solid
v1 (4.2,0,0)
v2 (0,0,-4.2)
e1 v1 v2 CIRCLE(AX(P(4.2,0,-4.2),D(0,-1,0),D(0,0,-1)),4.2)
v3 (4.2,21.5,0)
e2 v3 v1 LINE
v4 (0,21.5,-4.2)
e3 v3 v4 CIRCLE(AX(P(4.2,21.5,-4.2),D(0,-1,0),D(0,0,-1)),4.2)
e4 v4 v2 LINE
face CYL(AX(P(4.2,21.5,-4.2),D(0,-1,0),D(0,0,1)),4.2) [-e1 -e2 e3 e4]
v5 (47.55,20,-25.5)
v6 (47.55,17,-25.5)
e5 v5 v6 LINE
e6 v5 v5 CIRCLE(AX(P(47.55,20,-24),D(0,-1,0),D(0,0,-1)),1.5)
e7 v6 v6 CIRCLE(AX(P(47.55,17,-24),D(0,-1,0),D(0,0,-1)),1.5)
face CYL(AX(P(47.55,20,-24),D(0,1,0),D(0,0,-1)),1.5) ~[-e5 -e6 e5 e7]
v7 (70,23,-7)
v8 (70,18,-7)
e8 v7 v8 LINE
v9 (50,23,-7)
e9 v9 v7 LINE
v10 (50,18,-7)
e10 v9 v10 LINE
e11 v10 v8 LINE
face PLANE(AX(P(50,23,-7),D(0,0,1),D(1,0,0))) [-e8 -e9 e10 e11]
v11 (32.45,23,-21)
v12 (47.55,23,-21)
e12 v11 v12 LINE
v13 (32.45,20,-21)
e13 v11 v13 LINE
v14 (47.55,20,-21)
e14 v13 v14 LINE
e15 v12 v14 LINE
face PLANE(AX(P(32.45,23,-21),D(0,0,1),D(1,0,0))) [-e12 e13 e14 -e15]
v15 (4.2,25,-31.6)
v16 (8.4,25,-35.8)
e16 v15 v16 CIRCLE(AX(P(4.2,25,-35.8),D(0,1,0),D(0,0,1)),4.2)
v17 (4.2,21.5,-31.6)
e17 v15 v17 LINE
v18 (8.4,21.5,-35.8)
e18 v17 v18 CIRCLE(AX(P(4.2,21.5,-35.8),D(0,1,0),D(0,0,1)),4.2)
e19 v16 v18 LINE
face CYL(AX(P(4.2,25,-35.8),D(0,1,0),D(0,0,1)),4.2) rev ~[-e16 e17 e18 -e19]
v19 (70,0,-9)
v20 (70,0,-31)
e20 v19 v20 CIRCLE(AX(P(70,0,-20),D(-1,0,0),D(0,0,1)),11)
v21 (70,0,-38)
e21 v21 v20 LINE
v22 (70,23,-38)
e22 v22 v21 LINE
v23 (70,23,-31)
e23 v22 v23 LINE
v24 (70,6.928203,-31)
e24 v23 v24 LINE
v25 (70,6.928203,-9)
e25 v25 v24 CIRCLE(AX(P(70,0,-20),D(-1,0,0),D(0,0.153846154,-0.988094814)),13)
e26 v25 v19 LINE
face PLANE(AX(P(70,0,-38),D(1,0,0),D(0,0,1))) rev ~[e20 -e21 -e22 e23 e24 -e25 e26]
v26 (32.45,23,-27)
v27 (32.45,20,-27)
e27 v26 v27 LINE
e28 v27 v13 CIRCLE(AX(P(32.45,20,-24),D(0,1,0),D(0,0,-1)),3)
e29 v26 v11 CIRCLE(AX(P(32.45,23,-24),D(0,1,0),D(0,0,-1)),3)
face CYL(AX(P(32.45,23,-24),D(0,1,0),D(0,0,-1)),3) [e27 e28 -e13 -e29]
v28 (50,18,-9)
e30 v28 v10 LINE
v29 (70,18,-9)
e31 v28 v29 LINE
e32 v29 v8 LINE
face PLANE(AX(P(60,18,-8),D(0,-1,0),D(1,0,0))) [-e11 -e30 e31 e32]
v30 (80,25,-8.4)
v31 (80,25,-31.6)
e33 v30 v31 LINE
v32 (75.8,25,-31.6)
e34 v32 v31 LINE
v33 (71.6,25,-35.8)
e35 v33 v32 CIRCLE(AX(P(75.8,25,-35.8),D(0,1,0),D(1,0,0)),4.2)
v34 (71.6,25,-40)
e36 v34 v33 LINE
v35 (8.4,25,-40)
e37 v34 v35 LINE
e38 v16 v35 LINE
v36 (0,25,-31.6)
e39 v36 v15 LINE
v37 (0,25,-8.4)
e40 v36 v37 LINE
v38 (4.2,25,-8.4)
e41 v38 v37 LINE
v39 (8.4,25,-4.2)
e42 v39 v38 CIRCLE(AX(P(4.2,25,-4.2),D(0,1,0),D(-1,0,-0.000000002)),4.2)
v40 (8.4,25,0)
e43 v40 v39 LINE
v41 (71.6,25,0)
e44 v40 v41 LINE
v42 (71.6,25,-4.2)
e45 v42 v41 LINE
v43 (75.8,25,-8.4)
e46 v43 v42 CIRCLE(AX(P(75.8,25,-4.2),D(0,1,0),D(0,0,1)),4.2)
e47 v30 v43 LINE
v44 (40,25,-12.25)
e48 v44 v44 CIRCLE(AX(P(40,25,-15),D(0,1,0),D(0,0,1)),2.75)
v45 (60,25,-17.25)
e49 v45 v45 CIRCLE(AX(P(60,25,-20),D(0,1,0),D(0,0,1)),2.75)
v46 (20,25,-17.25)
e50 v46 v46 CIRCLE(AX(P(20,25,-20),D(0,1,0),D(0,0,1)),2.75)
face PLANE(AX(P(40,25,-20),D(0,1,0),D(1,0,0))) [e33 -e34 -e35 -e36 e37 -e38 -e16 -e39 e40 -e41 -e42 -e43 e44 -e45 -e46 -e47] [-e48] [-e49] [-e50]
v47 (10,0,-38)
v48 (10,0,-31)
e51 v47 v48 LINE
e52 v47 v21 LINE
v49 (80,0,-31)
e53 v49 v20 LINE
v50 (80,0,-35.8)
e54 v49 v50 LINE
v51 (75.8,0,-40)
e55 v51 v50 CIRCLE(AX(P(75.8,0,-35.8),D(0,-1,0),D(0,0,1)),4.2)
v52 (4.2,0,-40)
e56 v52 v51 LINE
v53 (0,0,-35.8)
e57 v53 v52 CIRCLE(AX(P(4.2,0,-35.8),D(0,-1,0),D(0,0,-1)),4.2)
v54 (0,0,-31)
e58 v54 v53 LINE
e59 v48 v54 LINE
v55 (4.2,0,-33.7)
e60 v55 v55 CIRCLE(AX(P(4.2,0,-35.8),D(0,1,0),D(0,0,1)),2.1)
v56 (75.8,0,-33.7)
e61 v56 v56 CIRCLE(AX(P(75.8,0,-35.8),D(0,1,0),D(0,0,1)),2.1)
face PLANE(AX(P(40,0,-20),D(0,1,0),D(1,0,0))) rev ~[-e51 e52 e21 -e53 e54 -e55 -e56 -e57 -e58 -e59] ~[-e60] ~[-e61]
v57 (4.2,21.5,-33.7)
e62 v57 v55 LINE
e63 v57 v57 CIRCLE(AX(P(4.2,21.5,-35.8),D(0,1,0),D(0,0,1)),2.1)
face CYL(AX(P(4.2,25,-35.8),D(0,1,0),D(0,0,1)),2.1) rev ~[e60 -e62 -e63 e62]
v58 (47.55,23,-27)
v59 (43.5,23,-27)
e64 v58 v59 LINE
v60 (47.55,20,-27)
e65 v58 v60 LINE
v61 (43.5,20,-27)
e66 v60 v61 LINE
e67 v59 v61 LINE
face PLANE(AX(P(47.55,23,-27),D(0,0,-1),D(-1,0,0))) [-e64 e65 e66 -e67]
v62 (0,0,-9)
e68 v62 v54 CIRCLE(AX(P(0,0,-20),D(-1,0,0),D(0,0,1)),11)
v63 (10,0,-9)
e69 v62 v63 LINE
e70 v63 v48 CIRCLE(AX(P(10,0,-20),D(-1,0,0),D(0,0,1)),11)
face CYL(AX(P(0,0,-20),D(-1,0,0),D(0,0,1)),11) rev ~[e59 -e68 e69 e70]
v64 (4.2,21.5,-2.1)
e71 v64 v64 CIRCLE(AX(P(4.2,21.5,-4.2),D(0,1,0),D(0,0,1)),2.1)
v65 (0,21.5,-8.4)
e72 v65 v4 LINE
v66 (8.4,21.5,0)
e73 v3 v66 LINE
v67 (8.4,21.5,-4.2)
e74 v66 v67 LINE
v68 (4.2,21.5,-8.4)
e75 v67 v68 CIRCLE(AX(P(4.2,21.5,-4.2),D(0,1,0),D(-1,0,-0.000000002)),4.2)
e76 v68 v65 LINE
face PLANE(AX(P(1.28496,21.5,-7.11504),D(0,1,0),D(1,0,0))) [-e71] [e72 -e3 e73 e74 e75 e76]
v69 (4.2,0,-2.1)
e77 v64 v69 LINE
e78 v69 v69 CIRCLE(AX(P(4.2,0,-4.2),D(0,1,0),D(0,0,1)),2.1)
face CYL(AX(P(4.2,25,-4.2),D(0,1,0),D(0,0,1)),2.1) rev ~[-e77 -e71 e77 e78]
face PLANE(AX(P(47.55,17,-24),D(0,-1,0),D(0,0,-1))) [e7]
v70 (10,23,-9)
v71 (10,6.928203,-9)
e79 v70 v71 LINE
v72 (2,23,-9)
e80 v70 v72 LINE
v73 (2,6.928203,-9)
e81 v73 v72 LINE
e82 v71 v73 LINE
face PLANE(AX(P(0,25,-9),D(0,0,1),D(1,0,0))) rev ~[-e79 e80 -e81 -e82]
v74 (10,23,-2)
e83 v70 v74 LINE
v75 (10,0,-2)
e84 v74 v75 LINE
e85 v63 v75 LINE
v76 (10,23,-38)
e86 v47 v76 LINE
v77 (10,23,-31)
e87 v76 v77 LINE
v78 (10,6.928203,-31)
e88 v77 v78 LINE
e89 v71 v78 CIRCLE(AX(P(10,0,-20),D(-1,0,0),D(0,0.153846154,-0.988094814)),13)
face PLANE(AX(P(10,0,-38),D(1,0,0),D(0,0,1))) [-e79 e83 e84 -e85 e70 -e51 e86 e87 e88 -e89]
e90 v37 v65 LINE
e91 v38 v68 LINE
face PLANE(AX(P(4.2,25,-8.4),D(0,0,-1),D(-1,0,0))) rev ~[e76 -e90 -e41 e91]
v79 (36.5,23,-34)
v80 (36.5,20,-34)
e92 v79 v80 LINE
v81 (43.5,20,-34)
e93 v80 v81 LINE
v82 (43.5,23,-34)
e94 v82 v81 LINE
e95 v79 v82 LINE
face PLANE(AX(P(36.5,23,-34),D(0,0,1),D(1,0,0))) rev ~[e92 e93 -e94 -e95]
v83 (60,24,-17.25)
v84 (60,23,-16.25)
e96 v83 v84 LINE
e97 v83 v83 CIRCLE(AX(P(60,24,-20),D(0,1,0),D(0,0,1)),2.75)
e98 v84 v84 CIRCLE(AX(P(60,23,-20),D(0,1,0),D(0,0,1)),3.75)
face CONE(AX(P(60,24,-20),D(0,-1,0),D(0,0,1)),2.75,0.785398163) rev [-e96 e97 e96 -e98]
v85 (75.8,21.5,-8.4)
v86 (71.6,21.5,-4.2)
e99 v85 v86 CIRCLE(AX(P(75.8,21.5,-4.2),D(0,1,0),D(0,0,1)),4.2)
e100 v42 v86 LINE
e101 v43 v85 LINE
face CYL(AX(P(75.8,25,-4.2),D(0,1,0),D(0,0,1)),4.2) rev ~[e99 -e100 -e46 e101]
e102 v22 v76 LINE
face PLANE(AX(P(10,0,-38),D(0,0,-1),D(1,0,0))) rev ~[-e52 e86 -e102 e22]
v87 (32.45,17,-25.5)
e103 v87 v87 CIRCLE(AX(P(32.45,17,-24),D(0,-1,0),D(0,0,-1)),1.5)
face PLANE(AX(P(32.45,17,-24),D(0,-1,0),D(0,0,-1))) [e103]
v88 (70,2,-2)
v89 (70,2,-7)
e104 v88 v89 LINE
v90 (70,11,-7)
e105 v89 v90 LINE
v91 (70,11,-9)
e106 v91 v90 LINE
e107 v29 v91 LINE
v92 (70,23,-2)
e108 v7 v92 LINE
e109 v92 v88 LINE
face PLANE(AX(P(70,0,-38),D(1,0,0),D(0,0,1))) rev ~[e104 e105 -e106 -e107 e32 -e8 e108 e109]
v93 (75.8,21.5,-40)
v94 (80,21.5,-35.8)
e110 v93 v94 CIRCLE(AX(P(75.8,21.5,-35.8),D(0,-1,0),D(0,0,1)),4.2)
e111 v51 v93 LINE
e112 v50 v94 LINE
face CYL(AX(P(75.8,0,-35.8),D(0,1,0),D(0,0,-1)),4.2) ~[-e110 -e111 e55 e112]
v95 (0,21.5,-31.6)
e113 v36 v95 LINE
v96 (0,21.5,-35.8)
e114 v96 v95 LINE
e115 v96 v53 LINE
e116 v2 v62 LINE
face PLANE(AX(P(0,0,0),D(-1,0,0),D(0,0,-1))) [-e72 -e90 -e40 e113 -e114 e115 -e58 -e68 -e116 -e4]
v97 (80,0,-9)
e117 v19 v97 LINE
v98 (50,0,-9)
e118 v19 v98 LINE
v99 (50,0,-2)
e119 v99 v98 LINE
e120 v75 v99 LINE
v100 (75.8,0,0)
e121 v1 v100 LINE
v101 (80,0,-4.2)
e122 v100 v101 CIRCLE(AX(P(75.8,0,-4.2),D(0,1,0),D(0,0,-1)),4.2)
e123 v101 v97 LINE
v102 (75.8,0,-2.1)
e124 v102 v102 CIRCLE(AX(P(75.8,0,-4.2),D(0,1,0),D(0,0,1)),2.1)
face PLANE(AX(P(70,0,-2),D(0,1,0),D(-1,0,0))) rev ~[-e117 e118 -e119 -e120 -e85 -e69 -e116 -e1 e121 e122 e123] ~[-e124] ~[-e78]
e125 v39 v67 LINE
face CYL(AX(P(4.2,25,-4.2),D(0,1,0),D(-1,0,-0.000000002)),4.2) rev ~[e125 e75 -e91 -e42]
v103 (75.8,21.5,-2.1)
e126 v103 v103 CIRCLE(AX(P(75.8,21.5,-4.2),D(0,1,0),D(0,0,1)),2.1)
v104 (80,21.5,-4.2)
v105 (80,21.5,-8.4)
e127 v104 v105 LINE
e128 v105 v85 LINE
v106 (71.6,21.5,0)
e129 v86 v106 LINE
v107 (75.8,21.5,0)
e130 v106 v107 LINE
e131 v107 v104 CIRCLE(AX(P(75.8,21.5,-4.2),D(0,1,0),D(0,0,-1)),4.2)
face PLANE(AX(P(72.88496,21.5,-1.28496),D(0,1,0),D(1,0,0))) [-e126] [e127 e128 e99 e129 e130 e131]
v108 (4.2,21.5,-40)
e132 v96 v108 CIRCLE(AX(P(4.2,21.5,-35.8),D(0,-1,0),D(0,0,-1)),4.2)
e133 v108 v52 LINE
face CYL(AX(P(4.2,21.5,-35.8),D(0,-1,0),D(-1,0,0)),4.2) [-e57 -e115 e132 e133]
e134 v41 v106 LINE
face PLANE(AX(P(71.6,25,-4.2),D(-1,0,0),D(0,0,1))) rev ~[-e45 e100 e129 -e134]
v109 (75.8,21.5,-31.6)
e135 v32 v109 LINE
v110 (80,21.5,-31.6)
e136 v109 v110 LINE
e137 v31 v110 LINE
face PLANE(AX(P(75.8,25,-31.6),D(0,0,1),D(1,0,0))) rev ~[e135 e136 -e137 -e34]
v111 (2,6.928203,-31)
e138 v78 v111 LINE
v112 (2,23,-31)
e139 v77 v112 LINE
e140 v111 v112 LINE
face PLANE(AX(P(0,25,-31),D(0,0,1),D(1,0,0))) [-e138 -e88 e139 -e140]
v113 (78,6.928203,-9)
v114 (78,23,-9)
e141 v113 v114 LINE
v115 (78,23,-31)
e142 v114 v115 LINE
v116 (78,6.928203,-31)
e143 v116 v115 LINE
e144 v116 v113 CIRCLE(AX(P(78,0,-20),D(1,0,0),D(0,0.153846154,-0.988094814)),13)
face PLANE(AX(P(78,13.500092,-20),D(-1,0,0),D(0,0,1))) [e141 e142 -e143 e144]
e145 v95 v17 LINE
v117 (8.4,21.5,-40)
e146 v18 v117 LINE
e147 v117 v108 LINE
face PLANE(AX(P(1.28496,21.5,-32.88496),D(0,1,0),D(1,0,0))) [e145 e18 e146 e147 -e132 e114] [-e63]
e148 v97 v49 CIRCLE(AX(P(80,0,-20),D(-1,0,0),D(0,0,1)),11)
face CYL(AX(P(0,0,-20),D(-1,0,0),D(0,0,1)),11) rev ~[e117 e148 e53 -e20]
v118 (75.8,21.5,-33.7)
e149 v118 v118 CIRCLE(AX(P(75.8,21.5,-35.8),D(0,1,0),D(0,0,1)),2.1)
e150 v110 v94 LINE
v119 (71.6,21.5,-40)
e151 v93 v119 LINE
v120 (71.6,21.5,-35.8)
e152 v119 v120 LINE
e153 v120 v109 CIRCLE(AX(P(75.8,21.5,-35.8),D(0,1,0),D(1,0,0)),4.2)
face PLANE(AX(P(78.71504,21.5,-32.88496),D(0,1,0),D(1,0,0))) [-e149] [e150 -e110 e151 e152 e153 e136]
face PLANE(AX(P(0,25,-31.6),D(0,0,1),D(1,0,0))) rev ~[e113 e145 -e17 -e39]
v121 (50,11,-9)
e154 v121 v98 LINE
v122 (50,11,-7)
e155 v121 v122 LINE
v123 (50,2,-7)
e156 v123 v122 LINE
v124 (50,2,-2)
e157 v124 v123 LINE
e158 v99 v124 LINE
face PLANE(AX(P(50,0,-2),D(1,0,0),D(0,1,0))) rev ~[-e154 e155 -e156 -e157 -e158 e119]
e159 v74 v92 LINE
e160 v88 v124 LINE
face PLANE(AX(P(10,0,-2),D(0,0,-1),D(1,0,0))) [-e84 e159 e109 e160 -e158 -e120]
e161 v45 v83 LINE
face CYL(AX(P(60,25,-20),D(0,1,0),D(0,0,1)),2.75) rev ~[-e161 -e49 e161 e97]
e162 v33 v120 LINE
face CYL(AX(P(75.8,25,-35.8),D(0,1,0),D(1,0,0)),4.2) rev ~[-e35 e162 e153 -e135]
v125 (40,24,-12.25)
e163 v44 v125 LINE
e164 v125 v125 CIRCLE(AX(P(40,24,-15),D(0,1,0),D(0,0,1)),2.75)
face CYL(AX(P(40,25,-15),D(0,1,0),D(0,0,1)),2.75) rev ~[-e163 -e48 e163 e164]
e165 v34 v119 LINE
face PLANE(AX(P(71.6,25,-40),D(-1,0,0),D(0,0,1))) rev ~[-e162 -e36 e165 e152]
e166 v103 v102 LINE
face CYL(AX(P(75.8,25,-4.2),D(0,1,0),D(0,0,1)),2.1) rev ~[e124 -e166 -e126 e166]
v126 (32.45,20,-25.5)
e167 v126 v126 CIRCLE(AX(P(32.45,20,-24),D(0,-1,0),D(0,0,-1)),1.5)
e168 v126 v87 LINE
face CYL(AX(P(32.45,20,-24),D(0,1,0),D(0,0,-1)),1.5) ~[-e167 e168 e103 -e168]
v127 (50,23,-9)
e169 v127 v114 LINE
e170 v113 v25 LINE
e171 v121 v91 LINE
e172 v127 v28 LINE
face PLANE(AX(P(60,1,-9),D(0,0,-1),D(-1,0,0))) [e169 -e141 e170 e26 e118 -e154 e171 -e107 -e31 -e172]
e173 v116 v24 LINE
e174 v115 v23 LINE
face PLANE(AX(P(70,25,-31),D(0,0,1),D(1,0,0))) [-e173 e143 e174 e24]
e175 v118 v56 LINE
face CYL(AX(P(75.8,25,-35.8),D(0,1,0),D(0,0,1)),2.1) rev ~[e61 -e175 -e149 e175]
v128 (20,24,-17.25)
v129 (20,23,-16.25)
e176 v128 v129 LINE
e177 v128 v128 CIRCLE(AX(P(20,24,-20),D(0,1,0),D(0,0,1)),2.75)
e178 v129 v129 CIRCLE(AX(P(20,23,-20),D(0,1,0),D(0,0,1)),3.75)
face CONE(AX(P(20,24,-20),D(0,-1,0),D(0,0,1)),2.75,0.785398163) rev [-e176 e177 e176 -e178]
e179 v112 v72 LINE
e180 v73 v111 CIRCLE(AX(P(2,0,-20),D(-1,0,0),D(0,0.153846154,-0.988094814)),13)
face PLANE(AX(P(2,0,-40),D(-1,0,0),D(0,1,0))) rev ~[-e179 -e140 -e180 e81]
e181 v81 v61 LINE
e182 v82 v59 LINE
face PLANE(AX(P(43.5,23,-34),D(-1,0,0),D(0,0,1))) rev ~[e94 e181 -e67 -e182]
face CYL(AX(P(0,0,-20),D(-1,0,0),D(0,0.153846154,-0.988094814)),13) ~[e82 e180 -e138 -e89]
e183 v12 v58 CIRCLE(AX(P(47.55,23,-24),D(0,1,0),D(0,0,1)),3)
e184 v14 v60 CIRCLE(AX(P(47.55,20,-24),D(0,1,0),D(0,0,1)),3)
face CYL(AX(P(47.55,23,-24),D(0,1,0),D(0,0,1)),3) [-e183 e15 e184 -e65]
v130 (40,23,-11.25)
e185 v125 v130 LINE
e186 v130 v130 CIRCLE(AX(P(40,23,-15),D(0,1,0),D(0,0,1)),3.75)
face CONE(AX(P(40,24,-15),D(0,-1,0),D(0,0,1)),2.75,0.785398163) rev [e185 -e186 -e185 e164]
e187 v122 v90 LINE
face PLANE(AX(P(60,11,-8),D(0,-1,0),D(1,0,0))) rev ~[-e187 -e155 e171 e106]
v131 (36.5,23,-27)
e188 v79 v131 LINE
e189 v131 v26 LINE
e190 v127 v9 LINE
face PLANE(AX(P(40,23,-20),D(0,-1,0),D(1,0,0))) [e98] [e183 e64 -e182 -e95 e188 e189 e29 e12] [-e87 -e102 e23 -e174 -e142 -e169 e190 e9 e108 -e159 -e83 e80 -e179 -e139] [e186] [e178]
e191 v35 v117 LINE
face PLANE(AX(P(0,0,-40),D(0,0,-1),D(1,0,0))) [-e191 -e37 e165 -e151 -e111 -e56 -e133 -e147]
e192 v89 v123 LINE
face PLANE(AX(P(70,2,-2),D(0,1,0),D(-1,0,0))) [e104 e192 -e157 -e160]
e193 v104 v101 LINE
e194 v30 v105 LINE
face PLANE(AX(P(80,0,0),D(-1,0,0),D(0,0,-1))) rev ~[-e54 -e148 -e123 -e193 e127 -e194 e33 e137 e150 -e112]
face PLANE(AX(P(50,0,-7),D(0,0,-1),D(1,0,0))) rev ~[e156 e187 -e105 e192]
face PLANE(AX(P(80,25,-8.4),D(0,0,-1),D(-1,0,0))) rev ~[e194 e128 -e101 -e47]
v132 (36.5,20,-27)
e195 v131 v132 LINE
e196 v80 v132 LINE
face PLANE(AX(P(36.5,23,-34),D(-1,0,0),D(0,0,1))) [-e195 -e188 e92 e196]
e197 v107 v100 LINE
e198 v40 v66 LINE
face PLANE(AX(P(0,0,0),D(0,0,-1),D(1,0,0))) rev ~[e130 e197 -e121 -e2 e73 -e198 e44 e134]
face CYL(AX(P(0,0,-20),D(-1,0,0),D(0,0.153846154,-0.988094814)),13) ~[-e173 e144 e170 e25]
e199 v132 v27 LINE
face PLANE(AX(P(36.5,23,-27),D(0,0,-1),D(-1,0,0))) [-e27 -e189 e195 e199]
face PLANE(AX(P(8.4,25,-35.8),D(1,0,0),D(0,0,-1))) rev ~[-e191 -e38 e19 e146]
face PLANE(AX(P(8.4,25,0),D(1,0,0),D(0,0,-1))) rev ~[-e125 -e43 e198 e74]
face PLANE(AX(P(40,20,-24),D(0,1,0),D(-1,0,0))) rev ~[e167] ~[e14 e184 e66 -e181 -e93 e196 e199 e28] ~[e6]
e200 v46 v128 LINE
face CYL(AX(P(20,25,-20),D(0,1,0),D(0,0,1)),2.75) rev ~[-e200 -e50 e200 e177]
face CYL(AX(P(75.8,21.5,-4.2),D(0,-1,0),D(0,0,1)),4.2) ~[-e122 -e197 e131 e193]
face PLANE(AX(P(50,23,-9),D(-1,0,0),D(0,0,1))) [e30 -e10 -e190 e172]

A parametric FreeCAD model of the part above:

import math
import FreeCAD as App
import Part
import Sketcher


def edges_at(feature, points):
    """Names of the edges that pass closest to the given points."""
    edges = feature.Shape.Edges
    near = lambda p: min(range(len(edges)), key=lambda i: edges[i].distToShape(Part.Vertex(*p))[0])
    return sorted({f"Edge{near(p) + 1}" for p in points})


def add_polygon(sketch, points):
    """Adds a closed chain of lines whose ends are joined by coincident constraints."""
    first, n = sketch.GeometryCount, len(points)
    for a, b in zip(points, points[1:] + points[:1]):
        sketch.addGeometry(Part.LineSegment(App.Vector(*a, 0), App.Vector(*b, 0)), False)
    for i in range(n):
        sketch.addConstraint(Sketcher.Constraint("Coincident", first + i, 2, first + (i + 1) % n, 1))

doc = App.newDocument("Part")
body = doc.addObject("PartDesign::Body", "Body")

# Sketch on XZ plane
sketch1 = body.newObject("Sketcher::SketchObject", "Sketch")
sketch1.AttachmentSupport = (doc.getObject("XZ_Plane"), [""])
sketch1.MapMode = "FlatFace"
add_polygon(sketch1, [(0, -40), (0, 0), (80, 0), (80, -40)])  # lines 0-3
sketch1.addConstraint(Sketcher.Constraint("Vertical", 0))
sketch1.addConstraint(Sketcher.Constraint("Horizontal", 1))
sketch1.addConstraint(Sketcher.Constraint("Vertical", 2))
sketch1.addConstraint(Sketcher.Constraint("Horizontal", 3))
sketch1.addConstraint(Sketcher.Constraint("Coincident", 0, 2, -1, 1))
sketch1.addConstraint(Sketcher.Constraint("DistanceX", 1, 1, 1, 2, 80.0))
sketch1.addConstraint(Sketcher.Constraint("DistanceY", 0, 1, 0, 2, 40.0))
pad1 = body.newObject("PartDesign::Pad", "Pad")
pad1.Profile = sketch1
pad1.Length = 25
pad1.Reversed = True

# Sketch on YZ plane
sketch2 = body.newObject("Sketcher::SketchObject", "Sketch001")
sketch2.AttachmentSupport = (doc.getObject("YZ_Plane"), [""])
sketch2.MapMode = "FlatFace"
sketch2.addGeometry(Part.LineSegment(App.Vector(23, -2, 0), App.Vector(23, -38, 0)), False)
sketch2.addGeometry(Part.LineSegment(App.Vector(23, -38, 0), App.Vector(2, -38, 0)), False)
sketch2.addGeometry(Part.LineSegment(App.Vector(2, -38, 0), App.Vector(2, -33, 0)), False)
sketch2.addGeometry(Part.ArcOfCircle(Part.Circle(App.Vector(0, -20, 0), App.Vector(0, 0, 1), 13), math.radians(-81), math.radians(81)), False)
sketch2.addGeometry(Part.LineSegment(App.Vector(2, -7, 0), App.Vector(2, -2, 0)), False)
sketch2.addGeometry(Part.LineSegment(App.Vector(2, -2, 0), App.Vector(23, -2, 0)), False)
sketch2.addConstraint(Sketcher.Constraint("Coincident", 0, 2, 1, 1))
sketch2.addConstraint(Sketcher.Constraint("Coincident", 1, 2, 2, 1))
sketch2.addConstraint(Sketcher.Constraint("Coincident", 2, 2, 3, 1))
sketch2.addConstraint(Sketcher.Constraint("Coincident", 3, 2, 4, 1))
sketch2.addConstraint(Sketcher.Constraint("Coincident", 4, 2, 5, 1))
sketch2.addConstraint(Sketcher.Constraint("Coincident", 5, 2, 0, 1))
sketch2.addConstraint(Sketcher.Constraint("Vertical", 0))
sketch2.addConstraint(Sketcher.Constraint("Horizontal", 1))
sketch2.addConstraint(Sketcher.Constraint("Vertical", 2))
sketch2.addConstraint(Sketcher.Constraint("Vertical", 4))
sketch2.addConstraint(Sketcher.Constraint("Horizontal", 5))
sketch2.addConstraint(Sketcher.Constraint("PointOnObject", 3, 3, -2))
sketch2.addConstraint(Sketcher.Constraint("Vertical", 2, 2, 3, 2))
sketch2.addConstraint(Sketcher.Constraint("Equal", 2, 4))
sketch2.addConstraint(Sketcher.Constraint("Radius", 3, 13.0))
sketch2.addConstraint(Sketcher.Constraint("DistanceX", 1, 2, 1, 1, 21.0))
sketch2.addConstraint(Sketcher.Constraint("DistanceY", 0, 2, 0, 1, 36.0))
sketch2.addConstraint(Sketcher.Constraint("DistanceY", 3, 3, -1, 1, 20.0))
sketch2.addConstraint(Sketcher.Constraint("DistanceX", -1, 1, 0, 2, 23.0))
pocket1 = body.newObject("PartDesign::Pocket", "Pocket")
pocket1.Profile = sketch2
pocket1.Length = 78
pocket1.Reversed = True

# Sketch on XY plane
sketch3 = body.newObject("Sketcher::SketchObject", "Sketch002")
sketch3.AttachmentSupport = (doc.getObject("XY_Plane"), [""])
sketch3.MapMode = "FlatFace"
sketch3.AttachmentOffset = App.Placement(App.Vector(0, 0, -40), App.Rotation())
add_polygon(sketch3, [(2, 25), (2, 0), (0, 0), (0, 25)])  # lines 0-3
sketch3.addConstraint(Sketcher.Constraint("Vertical", 0))
sketch3.addConstraint(Sketcher.Constraint("Horizontal", 1))
sketch3.addConstraint(Sketcher.Constraint("Vertical", 2))
sketch3.addConstraint(Sketcher.Constraint("Horizontal", 3))
sketch3.addConstraint(Sketcher.Constraint("Coincident", 1, 2, -1, 1))
sketch3.addConstraint(Sketcher.Constraint("DistanceX", 1, 2, 1, 1, 2.0))
sketch3.addConstraint(Sketcher.Constraint("DistanceY", 0, 2, 0, 1, 25.0))
pad2 = body.newObject("PartDesign::Pad", "Pad001")
pad2.Profile = sketch3
pad2.Length = 40

# Sketch on YZ plane
sketch4 = body.newObject("Sketcher::SketchObject", "Sketch003")
sketch4.AttachmentSupport = (doc.getObject("YZ_Plane"), [""])
sketch4.MapMode = "FlatFace"
sketch4.addGeometry(Part.Circle(App.Vector(0, -20, 0), App.Vector(0, 0, 1), 11), False)
sketch4.addConstraint(Sketcher.Constraint("PointOnObject", 0, 3, -2))
sketch4.addConstraint(Sketcher.Constraint("Diameter", 0, 22.0))
sketch4.addConstraint(Sketcher.Constraint("DistanceY", 0, 3, -1, 1, 20.0))
pocket2 = body.newObject("PartDesign::Pocket", "Pocket001")
pocket2.Profile = sketch4
pocket2.Type = "ThroughAll"
pocket2.Reversed = True

# Sketch on XZ plane
sketch5 = body.newObject("Sketcher::SketchObject", "Sketch004")
sketch5.AttachmentSupport = (doc.getObject("XZ_Plane"), [""])
sketch5.MapMode = "FlatFace"
add_polygon(sketch5, [(10, -2), (10, -38), (70, -38), (70, -2)])  # lines 0-3
sketch5.addConstraint(Sketcher.Constraint("Vertical", 0))
sketch5.addConstraint(Sketcher.Constraint("Horizontal", 1))
sketch5.addConstraint(Sketcher.Constraint("Vertical", 2))
sketch5.addConstraint(Sketcher.Constraint("Horizontal", 3))
sketch5.addConstraint(Sketcher.Constraint("DistanceX", 1, 1, 1, 2, 60.0))
sketch5.addConstraint(Sketcher.Constraint("DistanceY", 0, 2, 0, 1, 36.0))
sketch5.addConstraint(Sketcher.Constraint("DistanceX", -1, 1, 0, 2, 10.0))
sketch5.addConstraint(Sketcher.Constraint("DistanceY", 0, 2, -1, 1, 38.0))
pocket3 = body.newObject("PartDesign::Pocket", "Pocket002")
pocket3.Profile = sketch5
pocket3.Length = 23

# Sketch on XZ plane
sketch6 = body.newObject("Sketcher::SketchObject", "Sketch005")
sketch6.AttachmentSupport = (doc.getObject("XZ_Plane"), [""])
sketch6.MapMode = "FlatFace"
sketch6.AttachmentOffset = App.Placement(App.Vector(0, 0, -25), App.Rotation())
add_polygon(sketch6, [(70, -9), (70, 0), (80, 0), (80, -9)])  # lines 0-3
add_polygon(sketch6, [(0, -9), (0, 0), (10, 0), (10, -9)])  # lines 4-7
add_polygon(sketch6, [(0, -40), (0, -31), (10, -31), (10, -40)])  # lines 8-11
add_polygon(sketch6, [(70, -40), (70, -31), (80, -31), (80, -40)])  # lines 12-15
sketch6.addConstraint(Sketcher.Constraint("Vertical", 0))
sketch6.addConstraint(Sketcher.Constraint("Horizontal", 1))
sketch6.addConstraint(Sketcher.Constraint("Vertical", 2))
sketch6.addConstraint(Sketcher.Constraint("Horizontal", 3))
sketch6.addConstraint(Sketcher.Constraint("Vertical", 4))
sketch6.addConstraint(Sketcher.Constraint("Horizontal", 5))
sketch6.addConstraint(Sketcher.Constraint("Vertical", 6))
sketch6.addConstraint(Sketcher.Constraint("Horizontal", 7))
sketch6.addConstraint(Sketcher.Constraint("Vertical", 8))
sketch6.addConstraint(Sketcher.Constraint("Horizontal", 9))
sketch6.addConstraint(Sketcher.Constraint("Vertical", 10))
sketch6.addConstraint(Sketcher.Constraint("Horizontal", 11))
sketch6.addConstraint(Sketcher.Constraint("Vertical", 12))
sketch6.addConstraint(Sketcher.Constraint("Horizontal", 13))
sketch6.addConstraint(Sketcher.Constraint("Vertical", 14))
sketch6.addConstraint(Sketcher.Constraint("Horizontal", 15))
sketch6.addConstraint(Sketcher.Constraint("Coincident", 4, 2, -1, 1))
sketch6.addConstraint(Sketcher.Constraint("PointOnObject", 0, 2, -1))
sketch6.addConstraint(Sketcher.Constraint("PointOnObject", 8, 2, -2))
sketch6.addConstraint(Sketcher.Constraint("Horizontal", 3, 2, 6, 2))
sketch6.addConstraint(Sketcher.Constraint("Horizontal", 9, 2, 12, 2))
sketch6.addConstraint(Sketcher.Constraint("Horizontal", 11, 2, 14, 2))
sketch6.addConstraint(Sketcher.Constraint("Vertical", 6, 2, 9, 2))
sketch6.addConstraint(Sketcher.Constraint("Vertical", 3, 2, 12, 2))
sketch6.addConstraint(Sketcher.Constraint("Vertical", 2, 2, 13, 2))
sketch6.addConstraint(Sketcher.Constraint("Equal", 3, 5))
sketch6.addConstraint(Sketcher.Constraint("Equal", 6, 8))
sketch6.addConstraint(Sketcher.Constraint("DistanceX", 1, 1, 1, 2, 10.0))
sketch6.addConstraint(Sketcher.Constraint("DistanceY", 0, 1, 0, 2, 9.0))
sketch6.addConstraint(Sketcher.Constraint("DistanceX", -1, 1, 0, 2, 70.0))
sketch6.addConstraint(Sketcher.Constraint("DistanceY", 8, 2, -1, 1, 31.0))
pad3 = body.newObject("PartDesign::Pad", "Pad002")
pad3.Profile = sketch6
pad3.Length = 23

# Sketch on XZ plane
sketch7 = body.newObject("Sketcher::SketchObject", "Sketch006")
sketch7.AttachmentSupport = (doc.getObject("XZ_Plane"), [""])
sketch7.MapMode = "FlatFace"
sketch7.AttachmentOffset = App.Placement(App.Vector(0, 0, -25), App.Rotation())
sketch7.addGeometry(Part.Circle(App.Vector(75.8, -35.8, 0), App.Vector(0, 0, 1), 2.1), False)
sketch7.addGeometry(Part.Circle(App.Vector(75.8, -4.2, 0), App.Vector(0, 0, 1), 2.1), False)
sketch7.addGeometry(Part.Circle(App.Vector(4.2, -4.2, 0), App.Vector(0, 0, 1), 2.1), False)
sketch7.addGeometry(Part.Circle(App.Vector(4.2, -35.8, 0), App.Vector(0, 0, 1), 2.1), False)
sketch7.addConstraint(Sketcher.Constraint("Equal", 0, 1))
sketch7.addConstraint(Sketcher.Constraint("Equal", 1, 2))
sketch7.addConstraint(Sketcher.Constraint("Equal", 2, 3))
sketch7.addConstraint(Sketcher.Constraint("Horizontal", 1, 3, 2, 3))
sketch7.addConstraint(Sketcher.Constraint("Horizontal", 0, 3, 3, 3))
sketch7.addConstraint(Sketcher.Constraint("Vertical", 0, 3, 1, 3))
sketch7.addConstraint(Sketcher.Constraint("Vertical", 2, 3, 3, 3))
sketch7.addConstraint(Sketcher.Constraint("Diameter", 0, 4.2))
sketch7.addConstraint(Sketcher.Constraint("DistanceX", -1, 1, 0, 3, 75.8))
sketch7.addConstraint(Sketcher.Constraint("DistanceY", 0, 3, -1, 1, 35.8))
sketch7.addConstraint(Sketcher.Constraint("DistanceY", 1, 3, -1, 1, 4.2))
sketch7.addConstraint(Sketcher.Constraint("DistanceX", -1, 1, 2, 3, 4.2))
pocket4 = body.newObject("PartDesign::Pocket", "Pocket003")
pocket4.Profile = sketch7
pocket4.Type = "ThroughAll"
pocket4.Reversed = True

# Sketch on XZ plane
sketch8 = body.newObject("Sketcher::SketchObject", "Sketch007")
sketch8.AttachmentSupport = (doc.getObject("XZ_Plane"), [""])
sketch8.MapMode = "FlatFace"
sketch8.AttachmentOffset = App.Placement(App.Vector(0, 0, -25), App.Rotation())
sketch8.addGeometry(Part.Circle(App.Vector(60, -20, 0), App.Vector(0, 0, 1), 2.8), False)
sketch8.addGeometry(Part.Circle(App.Vector(40, -15, 0), App.Vector(0, 0, 1), 2.8), False)
sketch8.addGeometry(Part.Circle(App.Vector(20, -20, 0), App.Vector(0, 0, 1), 2.8), False)
sketch8.addConstraint(Sketcher.Constraint("Equal", 0, 1))
sketch8.addConstraint(Sketcher.Constraint("Equal", 1, 2))
sketch8.addConstraint(Sketcher.Constraint("Horizontal", 0, 3, 2, 3))
sketch8.addConstraint(Sketcher.Constraint("Diameter", 0, 5.5))
sketch8.addConstraint(Sketcher.Constraint("DistanceX", -1, 1, 0, 3, 60.0))
sketch8.addConstraint(Sketcher.Constraint("DistanceY", 0, 3, -1, 1, 20.0))
sketch8.addConstraint(Sketcher.Constraint("DistanceX", -1, 1, 1, 3, 40.0))
sketch8.addConstraint(Sketcher.Constraint("DistanceY", 1, 3, -1, 1, 15.0))
sketch8.addConstraint(Sketcher.Constraint("DistanceX", -1, 1, 2, 3, 20.0))
pocket5 = body.newObject("PartDesign::Pocket", "Pocket004")
pocket5.Profile = sketch8
pocket5.Type = "ThroughAll"
pocket5.Reversed = True
doc.recompute()

chamfer = body.newObject("PartDesign::Chamfer", "Chamfer")
chamfer.Base = (pocket5, edges_at(pocket5, [(60, 23, -22.75), (40, 23, -17.75), (20, 23, -22.75)]))
chamfer.Size = 1

# Sketch on XZ plane
sketch9 = body.newObject("Sketcher::SketchObject", "Sketch008")
sketch9.AttachmentSupport = (doc.getObject("XZ_Plane"), [""])
sketch9.MapMode = "FlatFace"
sketch9.AttachmentOffset = App.Placement(App.Vector(0, 0, -25), App.Rotation())
sketch9.addGeometry(Part.LineSegment(App.Vector(71.6, -4.2, 0), App.Vector(71.6, 0, 0)), False)
sketch9.addGeometry(Part.LineSegment(App.Vector(71.6, 0, 0), App.Vector(80, 0, 0)), False)
sketch9.addGeometry(Part.LineSegment(App.Vector(80, 0, 0), App.Vector(80, -8.4, 0)), False)
sketch9.addGeometry(Part.LineSegment(App.Vector(80, -8.4, 0), App.Vector(75.8, -8.4, 0)), False)
sketch9.addGeometry(Part.ArcOfCircle(Part.Circle(App.Vector(75.8, -4.2, 0), App.Vector(0, 0, 1), 4.2), math.radians(180), math.radians(270)), False)
sketch9.addGeometry(Part.Circle(App.Vector(75.8, -4.2, 0), App.Vector(0, 0, 1), 2.1), False)
sketch9.addGeometry(Part.LineSegment(App.Vector(75.8, -31.6, 0), App.Vector(80, -31.6, 0)), False)
sketch9.addGeometry(Part.LineSegment(App.Vector(80, -31.6, 0), App.Vector(80, -40, 0)), False)
sketch9.addGeometry(Part.LineSegment(App.Vector(80, -40, 0), App.Vector(71.6, -40, 0)), False)
sketch9.addGeometry(Part.LineSegment(App.Vector(71.6, -40, 0), App.Vector(71.6, -35.8, 0)), False)
sketch9.addGeometry(Part.ArcOfCircle(Part.Circle(App.Vector(75.8, -35.8, 0), App.Vector(0, 0, 1), 4.2), math.radians(90), math.radians(180)), False)
sketch9.addGeometry(Part.Circle(App.Vector(75.8, -35.8, 0), App.Vector(0, 0, 1), 2.1), False)
sketch9.addGeometry(Part.LineSegment(App.Vector(0, -31.6, 0), App.Vector(4.2, -31.6, 0)), False)
sketch9.addGeometry(Part.ArcOfCircle(Part.Circle(App.Vector(4.2, -35.8, 0), App.Vector(0, 0, 1), 4.2), math.radians(0), math.radians(90)), False)
sketch9.addGeometry(Part.LineSegment(App.Vector(8.4, -35.8, 0), App.Vector(8.4, -40, 0)), False)
sketch9.addGeometry(Part.LineSegment(App.Vector(8.4, -40, 0), App.Vector(0, -40, 0)), False)
sketch9.addGeometry(Part.LineSegment(App.Vector(0, -40, 0), App.Vector(0, -31.6, 0)), False)
sketch9.addGeometry(Part.Circle(App.Vector(4.2, -35.8, 0), App.Vector(0, 0, 1), 2.1), False)
sketch9.addGeometry(Part.LineSegment(App.Vector(4.2, -8.4, 0), App.Vector(0, -8.4, 0)), False)
sketch9.addGeometry(Part.LineSegment(App.Vector(0, -8.4, 0), App.Vector(0, 0, 0)), False)
sketch9.addGeometry(Part.LineSegment(App.Vector(0, 0, 0), App.Vector(8.4, 0, 0)), False)
sketch9.addGeometry(Part.LineSegment(App.Vector(8.4, 0, 0), App.Vector(8.4, -4.2, 0)), False)
sketch9.addGeometry(Part.ArcOfCircle(Part.Circle(App.Vector(4.2, -4.2, 0), App.Vector(0, 0, 1), 4.2), math.radians(-90), math.radians(0)), False)
sketch9.addGeometry(Part.Circle(App.Vector(4.2, -4.2, 0), App.Vector(0, 0, 1), 2.1), False)
sketch9.addConstraint(Sketcher.Constraint("Coincident", 0, 2, 1, 1))
sketch9.addConstraint(Sketcher.Constraint("Coincident", 1, 2, 2, 1))
sketch9.addConstraint(Sketcher.Constraint("Coincident", 2, 2, 3, 1))
sketch9.addConstraint(Sketcher.Constraint("Tangent", 3, 2, 4, 2))
sketch9.addConstraint(Sketcher.Constraint("Tangent", 4, 1, 0, 1))
sketch9.addConstraint(Sketcher.Constraint("Coincident", 6, 2, 7, 1))
sketch9.addConstraint(Sketcher.Constraint("Coincident", 7, 2, 8, 1))
sketch9.addConstraint(Sketcher.Constraint("Coincident", 8, 2, 9, 1))
sketch9.addConstraint(Sketcher.Constraint("Tangent", 9, 2, 10, 2))
sketch9.addConstraint(Sketcher.Constraint("Tangent", 10, 1, 6, 1))
sketch9.addConstraint(Sketcher.Constraint("Tangent", 12, 2, 13, 2))
sketch9.addConstraint(Sketcher.Constraint("Tangent", 13, 1, 14, 1))
sketch9.addConstraint(Sketcher.Constraint("Coincident", 14, 2, 15, 1))
sketch9.addConstraint(Sketcher.Constraint("Coincident", 15, 2, 16, 1))
sketch9.addConstraint(Sketcher.Constraint("Coincident", 16, 2, 12, 1))
sketch9.addConstraint(Sketcher.Constraint("Coincident", 18, 2, 19, 1))
sketch9.addConstraint(Sketcher.Constraint("Coincident", 19, 2, 20, 1))
sketch9.addConstraint(Sketcher.Constraint("Coincident", 20, 2, 21, 1))
sketch9.addConstraint(Sketcher.Constraint("Tangent", 21, 2, 22, 2))
sketch9.addConstraint(Sketcher.Constraint("Tangent", 22, 1, 18, 1))
sketch9.addConstraint(Sketcher.Constraint("Vertical", 0))
sketch9.addConstraint(Sketcher.Constraint("Horizontal", 1))
sketch9.addConstraint(Sketcher.Constraint("Vertical", 2))
sketch9.addConstraint(Sketcher.Constraint("Horizontal", 3))
sketch9.addConstraint(Sketcher.Constraint("Horizontal", 6))
sketch9.addConstraint(Sketcher.Constraint("Vertical", 7))
sketch9.addConstraint(Sketcher.Constraint("Horizontal", 8))
sketch9.addConstraint(Sketcher.Constraint("Vertical", 9))
sketch9.addConstraint(Sketcher.Constraint("Horizontal", 12))
sketch9.addConstraint(Sketcher.Constraint("Vertical", 14))
sketch9.addConstraint(Sketcher.Constraint("Horizontal", 15))
sketch9.addConstraint(Sketcher.Constraint("Vertical", 16))
sketch9.addConstraint(Sketcher.Constraint("Horizontal", 18))
sketch9.addConstraint(Sketcher.Constraint("Vertical", 19))
sketch9.addConstraint(Sketcher.Constraint("Horizontal", 20))
sketch9.addConstraint(Sketcher.Constraint("Vertical", 21))
sketch9.addConstraint(Sketcher.Constraint("Coincident", 19, 2, -1, 1))
sketch9.addConstraint(Sketcher.Constraint("Coincident", 5, 3, 4, 3))
sketch9.addConstraint(Sketcher.Constraint("Coincident", 11, 3, 10, 3))
sketch9.addConstraint(Sketcher.Constraint("Coincident", 17, 3, 13, 3))
sketch9.addConstraint(Sketcher.Constraint("Coincident", 23, 3, 22, 3))
sketch9.addConstraint(Sketcher.Constraint("Equal", 4, 10))
sketch9.addConstraint(Sketcher.Constraint("Equal", 5, 11))
sketch9.addConstraint(Sketcher.Constraint("Equal", 10, 13))
sketch9.addConstraint(Sketcher.Constraint("Equal", 11, 17))
sketch9.addConstraint(Sketcher.Constraint("Equal", 13, 22))
sketch9.addConstraint(Sketcher.Constraint("Equal", 17, 23))
sketch9.addConstraint(Sketcher.Constraint("PointOnObject", 0, 2, -1))
sketch9.addConstraint(Sketcher.Constraint("PointOnObject", 15, 2, -2))
sketch9.addConstraint(Sketcher.Constraint("Horizontal", 11, 3, 13, 3))
sketch9.addConstraint(Sketcher.Constraint("Horizontal", 5, 3, 22, 3))
sketch9.addConstraint(Sketcher.Constraint("Horizontal", 8, 2, 14, 2))
sketch9.addConstraint(Sketcher.Constraint("Vertical", 5, 3, 10, 3))
sketch9.addConstraint(Sketcher.Constraint("Vertical", 17, 3, 22, 3))
sketch9.addConstraint(Sketcher.Constraint("Vertical", 2, 2, 6, 2))
sketch9.addConstraint(Sketcher.Constraint("Equal", 6, 12))
sketch9.addConstraint(Sketcher.Constraint("Equal", 18, 0))
sketch9.addConstraint(Sketcher.Constraint("Equal", 2, 7))
sketch9.addConstraint(Sketcher.Constraint("Diameter", 5, 4.2))
sketch9.addConstraint(Sketcher.Constraint("Radius", 4, 4.2))
sketch9.addConstraint(Sketcher.Constraint("DistanceX", 1, 1, 1, 2, 8.4))
sketch9.addConstraint(Sketcher.Constraint("DistanceX", -1, 1, 1, 2, 80.0))
sketch9.addConstraint(Sketcher.Constraint("DistanceY", 7, 2, -1, 1, 40.0))
pocket6 = body.newObject("PartDesign::Pocket", "Pocket005")
pocket6.Profile = sketch9
pocket6.Length = 3.5
pocket6.Reversed = True
doc.recompute()

fillet = body.newObject("PartDesign::Fillet", "Fillet")
fillet.Base = (pocket6, edges_at(pocket6, [
    (80, 10.75, 0),
    (80, 10.75, -40),
    (0, 10.75, -40),
    (0, 10.75, 0),
]))
fillet.Radius = 4.2

# Sketch on XZ plane
sketch10 = body.newObject("Sketcher::SketchObject", "Sketch009")
sketch10.AttachmentSupport = (doc.getObject("XZ_Plane"), [""])
sketch10.MapMode = "FlatFace"
sketch10.AttachmentOffset = App.Placement(App.Vector(0, 0, -23), App.Rotation())
sketch10.addGeometry(Part.LineSegment(App.Vector(47.5, -21, 0), App.Vector(32.5, -21, 0)), False)
sketch10.addGeometry(Part.ArcOfCircle(Part.Circle(App.Vector(32.5, -24, 0), App.Vector(0, 0, 1), 3), math.radians(90), math.radians(270)), False)
sketch10.addGeometry(Part.LineSegment(App.Vector(32.5, -27, 0), App.Vector(36.5, -27, 0)), False)
sketch10.addGeometry(Part.LineSegment(App.Vector(36.5, -27, 0), App.Vector(36.5, -34, 0)), False)
sketch10.addGeometry(Part.LineSegment(App.Vector(36.5, -34, 0), App.Vector(43.5, -34, 0)), False)
sketch10.addGeometry(Part.LineSegment(App.Vector(43.5, -34, 0), App.Vector(43.5, -27, 0)), False)
sketch10.addGeometry(Part.LineSegment(App.Vector(43.5, -27, 0), App.Vector(47.5, -27, 0)), False)
sketch10.addGeometry(Part.ArcOfCircle(Part.Circle(App.Vector(47.5, -24, 0), App.Vector(0, 0, 1), 3), math.radians(-90), math.radians(90)), False)
sketch10.addConstraint(Sketcher.Constraint("Tangent", 0, 2, 1, 1))
sketch10.addConstraint(Sketcher.Constraint("Tangent", 1, 2, 2, 1))
sketch10.addConstraint(Sketcher.Constraint("Coincident", 2, 2, 3, 1))
sketch10.addConstraint(Sketcher.Constraint("Coincident", 3, 2, 4, 1))
sketch10.addConstraint(Sketcher.Constraint("Coincident", 4, 2, 5, 1))
sketch10.addConstraint(Sketcher.Constraint("Coincident", 5, 2, 6, 1))
sketch10.addConstraint(Sketcher.Constraint("Tangent", 6, 2, 7, 1))
sketch10.addConstraint(Sketcher.Constraint("Tangent", 7, 2, 0, 1))
sketch10.addConstraint(Sketcher.Constraint("Horizontal", 0))
sketch10.addConstraint(Sketcher.Constraint("Horizontal", 2))
sketch10.addConstraint(Sketcher.Constraint("Vertical", 3))
sketch10.addConstraint(Sketcher.Constraint("Horizontal", 4))
sketch10.addConstraint(Sketcher.Constraint("Vertical", 5))
sketch10.addConstraint(Sketcher.Constraint("Horizontal", 6))
sketch10.addConstraint(Sketcher.Constraint("Equal", 1, 7))
sketch10.addConstraint(Sketcher.Constraint("Equal", 2, 6))
sketch10.addConstraint(Sketcher.Constraint("Equal", 4, 3))
sketch10.addConstraint(Sketcher.Constraint("Radius", 1, 3.0))
sketch10.addConstraint(Sketcher.Constraint("DistanceX", 4, 1, 4, 2, 7.0))
sketch10.addConstraint(Sketcher.Constraint("DistanceX", 0, 2, 0, 1, 15.1))
sketch10.addConstraint(Sketcher.Constraint("DistanceY", 1, 3, -1, 1, 24.0))
sketch10.addConstraint(Sketcher.Constraint("DistanceX", -1, 1, 2, 2, 36.5))
pad4 = body.newObject("PartDesign::Pad", "Pad003")
pad4.Profile = sketch10
pad4.Length = 3

# Sketch on XZ plane
sketch11 = body.newObject("Sketcher::SketchObject", "Sketch010")
sketch11.AttachmentSupport = (doc.getObject("XZ_Plane"), [""])
sketch11.MapMode = "FlatFace"
sketch11.AttachmentOffset = App.Placement(App.Vector(0, 0, -23), App.Rotation())
add_polygon(sketch11, [(50, -7), (50, -9), (70, -9), (70, -7)])  # lines 0-3
sketch11.addConstraint(Sketcher.Constraint("Vertical", 0))
sketch11.addConstraint(Sketcher.Constraint("Horizontal", 1))
sketch11.addConstraint(Sketcher.Constraint("Vertical", 2))
sketch11.addConstraint(Sketcher.Constraint("Horizontal", 3))
sketch11.addConstraint(Sketcher.Constraint("DistanceX", 1, 1, 1, 2, 20.0))
sketch11.addConstraint(Sketcher.Constraint("DistanceY", 0, 2, 0, 1, 2.0))
sketch11.addConstraint(Sketcher.Constraint("DistanceX", -1, 1, 0, 2, 50.0))
sketch11.addConstraint(Sketcher.Constraint("DistanceY", 0, 2, -1, 1, 9.0))
pad5 = body.newObject("PartDesign::Pad", "Pad004")
pad5.Profile = sketch11
pad5.Length = 5

# Sketch on XY plane
sketch12 = body.newObject("Sketcher::SketchObject", "Sketch011")
sketch12.AttachmentSupport = (doc.getObject("XY_Plane"), [""])
sketch12.MapMode = "FlatFace"
sketch12.AttachmentOffset = App.Placement(App.Vector(0, 0, -2), App.Rotation())
add_polygon(sketch12, [(70, 2), (70, 0), (50, 0), (50, 2)])  # lines 0-3
sketch12.addConstraint(Sketcher.Constraint("Vertical", 0))
sketch12.addConstraint(Sketcher.Constraint("Horizontal", 1))
sketch12.addConstraint(Sketcher.Constraint("Vertical", 2))
sketch12.addConstraint(Sketcher.Constraint("Horizontal", 3))
sketch12.addConstraint(Sketcher.Constraint("PointOnObject", 0, 2, -1))
sketch12.addConstraint(Sketcher.Constraint("DistanceX", 1, 2, 1, 1, 20.0))
sketch12.addConstraint(Sketcher.Constraint("DistanceY", 0, 2, 0, 1, 2.0))
sketch12.addConstraint(Sketcher.Constraint("DistanceX", -1, 1, 0, 2, 70.0))
pad6 = body.newObject("PartDesign::Pad", "Pad005")
pad6.Profile = sketch12
pad6.Length = 7
pad6.Reversed = True

# Sketch on XZ plane
sketch13 = body.newObject("Sketcher::SketchObject", "Sketch012")
sketch13.AttachmentSupport = (doc.getObject("XZ_Plane"), [""])
sketch13.MapMode = "FlatFace"
add_polygon(sketch13, [(50, -7), (50, -9), (70, -9), (70, -7)])  # lines 0-3
sketch13.addConstraint(Sketcher.Constraint("Vertical", 0))
sketch13.addConstraint(Sketcher.Constraint("Horizontal", 1))
sketch13.addConstraint(Sketcher.Constraint("Vertical", 2))
sketch13.addConstraint(Sketcher.Constraint("Horizontal", 3))
sketch13.addConstraint(Sketcher.Constraint("DistanceX", 1, 1, 1, 2, 20.0))
sketch13.addConstraint(Sketcher.Constraint("DistanceY", 0, 2, 0, 1, 2.0))
sketch13.addConstraint(Sketcher.Constraint("DistanceX", -1, 1, 0, 2, 50.0))
sketch13.addConstraint(Sketcher.Constraint("DistanceY", 0, 2, -1, 1, 9.0))
pad7 = body.newObject("PartDesign::Pad", "Pad006")
pad7.Profile = sketch13
pad7.Length = 11
pad7.Reversed = True

# Sketch on XZ plane
sketch14 = body.newObject("Sketcher::SketchObject", "Sketch013")
sketch14.AttachmentSupport = (doc.getObject("XZ_Plane"), [""])
sketch14.MapMode = "FlatFace"
sketch14.AttachmentOffset = App.Placement(App.Vector(0, 0, -20), App.Rotation())
sketch14.addGeometry(Part.Circle(App.Vector(32.5, -24, 0), App.Vector(0, 0, 1), 1.5), False)
sketch14.addGeometry(Part.Circle(App.Vector(47.5, -24, 0), App.Vector(0, 0, 1), 1.5), False)
sketch14.addConstraint(Sketcher.Constraint("Equal", 0, 1))
sketch14.addConstraint(Sketcher.Constraint("Horizontal", 0, 3, 1, 3))
sketch14.addConstraint(Sketcher.Constraint("Diameter", 0, 3.0))
sketch14.addConstraint(Sketcher.Constraint("DistanceY", 0, 3, -1, 1, 24.0))
sketch14.addConstraint(Sketcher.Constraint("DistanceX", 0, 3, 1, 3, 15.1))
sketch14.addConstraint(Sketcher.Constraint("DistanceX", -1, 1, 0, 3, 32.45))
pad8 = body.newObject("PartDesign::Pad", "Pad007")
pad8.Profile = sketch14
pad8.Length = 3

doc.recompute()
